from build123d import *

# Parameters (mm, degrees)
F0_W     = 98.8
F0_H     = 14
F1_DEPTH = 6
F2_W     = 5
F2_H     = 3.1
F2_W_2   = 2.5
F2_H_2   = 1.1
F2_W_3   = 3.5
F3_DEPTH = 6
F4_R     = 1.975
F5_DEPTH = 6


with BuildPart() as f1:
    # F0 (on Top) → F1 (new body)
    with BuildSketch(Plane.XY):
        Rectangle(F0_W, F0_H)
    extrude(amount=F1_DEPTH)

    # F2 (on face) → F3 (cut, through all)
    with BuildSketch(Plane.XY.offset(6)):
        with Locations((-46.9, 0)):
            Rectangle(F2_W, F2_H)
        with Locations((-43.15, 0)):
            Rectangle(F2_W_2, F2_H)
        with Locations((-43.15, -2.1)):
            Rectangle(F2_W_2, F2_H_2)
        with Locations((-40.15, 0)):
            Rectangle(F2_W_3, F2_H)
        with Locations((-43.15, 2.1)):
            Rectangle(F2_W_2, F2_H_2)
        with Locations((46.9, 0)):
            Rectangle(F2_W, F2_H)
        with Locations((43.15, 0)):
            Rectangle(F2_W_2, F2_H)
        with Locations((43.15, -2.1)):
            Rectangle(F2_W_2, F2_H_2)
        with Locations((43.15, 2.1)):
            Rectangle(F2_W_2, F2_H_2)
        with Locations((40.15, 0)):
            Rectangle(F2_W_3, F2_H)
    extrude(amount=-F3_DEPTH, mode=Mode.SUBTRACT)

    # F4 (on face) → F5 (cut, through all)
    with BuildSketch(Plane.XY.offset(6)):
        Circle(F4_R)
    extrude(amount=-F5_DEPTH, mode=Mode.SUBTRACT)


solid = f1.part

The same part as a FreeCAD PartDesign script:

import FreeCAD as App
import Part
import Sketcher

V = App.Vector
Q = App.Units.Quantity

doc = App.newDocument("Part")
body = doc.addObject("PartDesign::Body", "Body")

# Sketch on XY plane
sketch1 = body.newObject("Sketcher::SketchObject", "Sketch")
sketch1.AttachmentSupport = (doc.getObject("XY_Plane"), [""])
sketch1.MapMode = "FlatFace"
sketch1.addGeometry(Part.LineSegment(V(-49, 7, 0), V(-49, -7, 0)), False)
sketch1.addGeometry(Part.LineSegment(V(-49, -7, 0), V(49, -7, 0)), False)
sketch1.addGeometry(Part.LineSegment(V(49, -7, 0), V(49, 7, 0)), False)
sketch1.addGeometry(Part.LineSegment(V(49, 7, 0), V(-49, 7, 0)), False)
sketch1.addConstraint(Sketcher.Constraint("Coincident", 0, 2, 1, 1))
sketch1.addConstraint(Sketcher.Constraint("Coincident", 1, 2, 2, 1))
sketch1.addConstraint(Sketcher.Constraint("Coincident", 2, 2, 3, 1))
sketch1.addConstraint(Sketcher.Constraint("Coincident", 3, 2, 0, 1))
sketch1.addConstraint(Sketcher.Constraint("Vertical", 0))
sketch1.addConstraint(Sketcher.Constraint("Horizontal", 1))
sketch1.addConstraint(Sketcher.Constraint("Vertical", 2))
sketch1.addConstraint(Sketcher.Constraint("Horizontal", 3))
sketch1.addConstraint(Sketcher.Constraint("Symmetric", 0, 2, 2, 2, -1, 1))
sketch1.addConstraint(Sketcher.Constraint("DistanceY", 0, 2, 0, 1, Q("14 mm")))
sketch1.addConstraint(Sketcher.Constraint("DistanceX", 1, 1, 1, 2, Q("98.8 mm")))
pad1 = body.newObject("PartDesign::Pad", "Pad")
pad1.Profile = sketch1
pad1.Length = 6

# Sketch on XY plane
sketch2 = body.newObject("Sketcher::SketchObject", "Sketch001")
sketch2.AttachmentSupport = (doc.getObject("XY_Plane"), [""])
sketch2.MapMode = "FlatFace"
sketch2.AttachmentOffset = App.Placement(V(0, 0, 6), App.Rotation())
sketch2.addGeometry(Part.LineSegment(V(-49.4, 1.6, 0), V(-49.4, -1.6, 0)), False)
sketch2.addGeometry(Part.LineSegment(V(-49.4, -1.6, 0), V(-44.4, -1.6, 0)), False)
sketch2.addGeometry(Part.LineSegment(V(-44.4, -1.6, 0), V(-44.4, -2.6, 0)), False)
sketch2.addGeometry(Part.LineSegment(V(-44.4, -2.6, 0), V(-41.9, -2.6, 0)), False)
sketch2.addGeometry(Part.LineSegment(V(-41.9, -2.6, 0), V(-41.9, -1.6, 0)), False)
sketch2.addGeometry(Part.LineSegment(V(-41.9, -1.6, 0), V(-38.4, -1.6, 0)), False)
sketch2.addGeometry(Part.LineSegment(V(-38.4, -1.6, 0), V(-38.4, 1.6, 0)), False)
sketch2.addGeometry(Part.LineSegment(V(-38.4, 1.6, 0), V(-41.9, 1.6, 0)), False)
sketch2.addGeometry(Part.LineSegment(V(-41.9, 1.6, 0), V(-41.9, 2.6, 0)), False)
sketch2.addGeometry(Part.LineSegment(V(-41.9, 2.6, 0), V(-44.4, 2.6, 0)), False)
sketch2.addGeometry(Part.LineSegment(V(-44.4, 2.6, 0), V(-44.4, 1.6, 0)), False)
sketch2.addGeometry(Part.LineSegment(V(-44.4, 1.6, 0), V(-49.4, 1.6, 0)), False)
sketch2.addGeometry(Part.LineSegment(V(49.4, -1.6, 0), V(49.4, 1.6, 0)), False)
sketch2.addGeometry(Part.LineSegment(V(49.4, 1.6, 0), V(44.4, 1.6, 0)), False)
sketch2.addGeometry(Part.LineSegment(V(44.4, 1.6, 0), V(44.4, 2.6, 0)), False)
sketch2.addGeometry(Part.LineSegment(V(44.4, 2.6, 0), V(41.9, 2.6, 0)), False)
sketch2.addGeometry(Part.LineSegment(V(41.9, 2.6, 0), V(41.9, 1.6, 0)), False)
sketch2.addGeometry(Part.LineSegment(V(41.9, 1.6, 0), V(38.4, 1.6, 0)), False)
sketch2.addGeometry(Part.LineSegment(V(38.4, 1.6, 0), V(38.4, -1.6, 0)), False)
sketch2.addGeometry(Part.LineSegment(V(38.4, -1.6, 0), V(41.9, -1.6, 0)), False)
sketch2.addGeometry(Part.LineSegment(V(41.9, -1.6, 0), V(41.9, -2.6, 0)), False)
sketch2.addGeometry(Part.LineSegment(V(41.9, -2.6, 0), V(44.4, -2.6, 0)), False)
sketch2.addGeometry(Part.LineSegment(V(44.4, -2.6, 0), V(44.4, -1.6, 0)), False)
sketch2.addGeometry(Part.LineSegment(V(44.4, -1.6, 0), V(49.4, -1.6, 0)), False)
sketch2.addConstraint(Sketcher.Constraint("Coincident", 0, 2, 1, 1))
sketch2.addConstraint(Sketcher.Constraint("Coincident", 1, 2, 2, 1))
sketch2.addConstraint(Sketcher.Constraint("Coincident", 2, 2, 3, 1))
sketch2.addConstraint(Sketcher.Constraint("Coincident", 3, 2, 4, 1))
sketch2.addConstraint(Sketcher.Constraint("Coincident", 4, 2, 5, 1))
sketch2.addConstraint(Sketcher.Constraint("Coincident", 5, 2, 6, 1))
sketch2.addConstraint(Sketcher.Constraint("Coincident", 6, 2, 7, 1))
sketch2.addConstraint(Sketcher.Constraint("Coincident", 7, 2, 8, 1))
sketch2.addConstraint(Sketcher.Constraint("Coincident", 8, 2, 9, 1))
sketch2.addConstraint(Sketcher.Constraint("Coincident", 9, 2, 10, 1))
sketch2.addConstraint(Sketcher.Constraint("Coincident", 10, 2, 11, 1))
sketch2.addConstraint(Sketcher.Constraint("Coincident", 11, 2, 0, 1))
sketch2.addConstraint(Sketcher.Constraint("Coincident", 12, 2, 13, 1))
sketch2.addConstraint(Sketcher.Constraint("Coincident", 13, 2, 14, 1))
sketch2.addConstraint(Sketcher.Constraint("Coincident", 14, 2, 15, 1))
sketch2.addConstraint(Sketcher.Constraint("Coincident", 15, 2, 16, 1))
sketch2.addConstraint(Sketcher.Constraint("Coincident", 16, 2, 17, 1))
sketch2.addConstraint(Sketcher.Constraint("Coincident", 17, 2, 18, 1))
sketch2.addConstraint(Sketcher.Constraint("Coincident", 18, 2, 19, 1))
sketch2.addConstraint(Sketcher.Constraint("Coincident", 19, 2, 20, 1))
sketch2.addConstraint(Sketcher.Constraint("Coincident", 20, 2, 21, 1))
sketch2.addConstraint(Sketcher.Constraint("Coincident", 21, 2, 22, 1))
sketch2.addConstraint(Sketcher.Constraint("Coincident", 22, 2, 23, 1))
sketch2.addConstraint(Sketcher.Constraint("Coincident", 23, 2, 12, 1))
sketch2.addConstraint(Sketcher.Constraint("Vertical", 0))
sketch2.addConstraint(Sketcher.Constraint("Horizontal", 1))
sketch2.addConstraint(Sketcher.Constraint("Vertical", 2))
sketch2.addConstraint(Sketcher.Constraint("Horizontal", 3))
sketch2.addConstraint(Sketcher.Constraint("Vertical", 4))
sketch2.addConstraint(Sketcher.Constraint("Horizontal", 5))
sketch2.addConstraint(Sketcher.Constraint("Vertical", 6))
sketch2.addConstraint(Sketcher.Constraint("Horizontal", 7))
sketch2.addConstraint(Sketcher.Constraint("Vertical", 8))
sketch2.addConstraint(Sketcher.Constraint("Horizontal", 9))
sketch2.addConstraint(Sketcher.Constraint("Vertical", 10))
sketch2.addConstraint(Sketcher.Constraint("Horizontal", 11))
sketch2.addConstraint(Sketcher.Constraint("Vertical", 12))
sketch2.addConstraint(Sketcher.Constraint("Horizontal", 13))
sketch2.addConstraint(Sketcher.Constraint("Vertical", 14))
sketch2.addConstraint(Sketcher.Constraint("Horizontal", 15))
sketch2.addConstraint(Sketcher.Constraint("Vertical", 16))
sketch2.addConstraint(Sketcher.Constraint("Horizontal", 17))
sketch2.addConstraint(Sketcher.Constraint("Vertical", 18))
sketch2.addConstraint(Sketcher.Constraint("Horizontal", 19))
sketch2.addConstraint(Sketcher.Constraint("Vertical", 20))
sketch2.addConstraint(Sketcher.Constraint("Horizontal", 21))
sketch2.addConstraint(Sketcher.Constraint("Vertical", 22))
sketch2.addConstraint(Sketcher.Constraint("Horizontal", 23))
sketch2.addConstraint(Sketcher.Constraint("Symmetric", 0, 2, 12, 2, -1, 1))
sketch2.addConstraint(Sketcher.Constraint("Symmetric", 2, 2, 14, 2, -1, 1))
sketch2.addConstraint(Sketcher.Constraint("Symmetric", 4, 2, 16, 2, -1, 1))
sketch2.addConstraint(Sketcher.Constraint("Symmetric", 6, 2, 18, 2, -1, 1))
sketch2.addConstraint(Sketcher.Constraint("Symmetric", 8, 2, 20, 2, -1, 1))
sketch2.addConstraint(Sketcher.Constraint("Symmetric", 10, 2, 22, 2, -1, 1))
sketch2.addConstraint(Sketcher.Constraint("Symmetric", 10, 2, 13, 2, -2))
sketch2.addConstraint(Sketcher.Constraint("Symmetric", 8, 2, 15, 2, -2))
sketch2.addConstraint(Sketcher.Constraint("Horizontal", 1, 2, 4, 2))
sketch2.addConstraint(Sketcher.Constraint("Horizontal", 7, 2, 10, 2))
sketch2.addConstraint(Sketcher.Constraint("DistanceX", 1, 1, 1, 2, Q("5 mm")))
sketch2.addConstraint(Sketcher.Constraint("DistanceX", 3, 1, 3, 2, Q("2.5 mm")))
sketch2.addConstraint(Sketcher.Constraint("DistanceX", 5, 1, 5, 2, Q("3.5 mm")))
sketch2.addConstraint(Sketcher.Constraint("DistanceY", 0, 2, 0, 1, Q("3.1 mm")))
sketch2.addConstraint(Sketcher.Constraint("DistanceY", 2, 2, 2, 1, Q("1.1 mm")))
sketch2.addConstraint(Sketcher.Constraint("DistanceX", 0, 2, -1, 1, Q("49.4 mm")))
pocket1 = body.newObject("PartDesign::Pocket", "Pocket")
pocket1.Profile = sketch2
pocket1.Type = "ThroughAll"

# Sketch on XY plane
sketch3 = body.newObject("Sketcher::SketchObject", "Sketch002")
sketch3.AttachmentSupport = (doc.getObject("XY_Plane"), [""])
sketch3.MapMode = "FlatFace"
sketch3.AttachmentOffset = App.Placement(V(0, 0, 6), App.Rotation())
sketch3.addGeometry(Part.Circle(V(0, 0, 0), V(0, 0, 1), 2), False)
sketch3.addConstraint(Sketcher.Constraint("Coincident", 0, 3, -1, 1))
sketch3.addConstraint(Sketcher.Constraint("Diameter", 0, Q("3.95 mm")))
pocket2 = body.newObject("PartDesign::Pocket", "Pocket001")
pocket2.Profile = sketch3
pocket2.Type = "ThroughAll"

doc.recompute()
